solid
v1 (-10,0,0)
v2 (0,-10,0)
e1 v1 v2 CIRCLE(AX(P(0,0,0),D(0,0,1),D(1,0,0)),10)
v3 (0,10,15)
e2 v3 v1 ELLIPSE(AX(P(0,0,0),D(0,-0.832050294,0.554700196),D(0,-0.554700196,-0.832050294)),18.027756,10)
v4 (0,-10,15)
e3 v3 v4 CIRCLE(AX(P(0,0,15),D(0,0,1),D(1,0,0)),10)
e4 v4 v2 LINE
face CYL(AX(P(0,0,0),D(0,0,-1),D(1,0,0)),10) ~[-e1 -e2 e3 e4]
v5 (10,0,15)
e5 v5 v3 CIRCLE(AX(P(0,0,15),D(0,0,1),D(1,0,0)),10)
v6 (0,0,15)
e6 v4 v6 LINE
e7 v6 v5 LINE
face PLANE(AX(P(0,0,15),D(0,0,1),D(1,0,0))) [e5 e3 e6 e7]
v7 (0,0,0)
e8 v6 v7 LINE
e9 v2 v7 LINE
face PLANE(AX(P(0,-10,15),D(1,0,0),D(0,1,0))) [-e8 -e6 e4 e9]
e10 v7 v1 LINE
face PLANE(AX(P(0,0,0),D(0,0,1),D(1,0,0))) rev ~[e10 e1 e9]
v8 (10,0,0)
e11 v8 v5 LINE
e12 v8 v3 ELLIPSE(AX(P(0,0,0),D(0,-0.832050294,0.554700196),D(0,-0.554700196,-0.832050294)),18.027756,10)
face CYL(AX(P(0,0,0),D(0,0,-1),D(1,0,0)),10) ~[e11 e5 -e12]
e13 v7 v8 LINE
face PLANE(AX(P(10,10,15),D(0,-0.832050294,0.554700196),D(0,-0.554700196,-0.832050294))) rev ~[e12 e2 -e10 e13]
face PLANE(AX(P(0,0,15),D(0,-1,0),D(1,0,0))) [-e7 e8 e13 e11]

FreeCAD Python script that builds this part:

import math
import FreeCAD as App
import Part
import Sketcher

V = App.Vector
Q = App.Units.Quantity

doc = App.newDocument("Part")
body = doc.addObject("PartDesign::Body", "Body")

# Sketch on XY plane
sketch1 = doc.addObject("Sketcher::SketchObject", "Sketch")
body.addObject(sketch1)
sketch1.AttachmentSupport = (doc.XY_Plane, [""])
sketch1.MapMode = "FlatFace"
sketch1.addGeometry(Part.Circle(V(0, 0, 0), V(0, 0, 1), 10), False)
sketch1.addConstraint(Sketcher.Constraint("Coincident", 0, 3, -1, 1))
sketch1.addConstraint(Sketcher.Constraint("Diameter", 0, Q("20 mm")))
pad1 = doc.addObject("PartDesign::Pad", "Pad")
body.addObject(pad1)
pad1.Profile = sketch1
pad1.Length = 15

# Sketch on XY plane
sketch2 = doc.addObject("Sketcher::SketchObject", "Sketch001")
body.addObject(sketch2)
sketch2.AttachmentSupport = (doc.XY_Plane, [""])
sketch2.MapMode = "FlatFace"
sketch2.AttachmentOffset = App.Placement(V(0, 0, 15), App.Rotation())
sketch2.addGeometry(Part.LineSegment(V(10, 0, 0), V(0, 0, 0)), False)
sketch2.addGeometry(Part.LineSegment(V(0, 0, 0), V(0, -10, 0)), False)
sketch2.addGeometry(Part.ArcOfCircle(Part.Circle(V(0, 0, 0), V(0, 0, 1), 10), math.radians(-90), math.radians(0)), False)
sketch2.addConstraint(Sketcher.Constraint("Coincident", 0, 2, 1, 1))
sketch2.addConstraint(Sketcher.Constraint("Coincident", 1, 2, 2, 1))
sketch2.addConstraint(Sketcher.Constraint("Coincident", 2, 2, 0, 1))
sketch2.addConstraint(Sketcher.Constraint("Horizontal", 0))
sketch2.addConstraint(Sketcher.Constraint("Vertical", 1))
sketch2.addConstraint(Sketcher.Constraint("Coincident", 2, 3, -1, 1))
sketch2.addConstraint(Sketcher.Constraint("Coincident", 0, 2, -1, 1))
sketch2.addConstraint(Sketcher.Constraint("Radius", 2, Q("10 mm")))
pocket1 = doc.addObject("PartDesign::Pocket", "Pocket")
body.addObject(pocket1)
pocket1.Profile = sketch2
pocket1.Type = "ThroughAll"

# Sketch on YZ plane
sketch3 = doc.addObject("Sketcher::SketchObject", "Sketch002")
body.addObject(sketch3)
sketch3.AttachmentSupport = (doc.YZ_Plane, [""])
sketch3.MapMode = "FlatFace"
sketch3.AttachmentOffset = App.Placement(V(0, 0, 10), App.Rotation())
sketch3.addGeometry(Part.LineSegment(V(0, 0, 0), V(10, 0, 0)), False)
sketch3.addGeometry(Part.LineSegment(V(10, 0, 0), V(10, 15, 0)), False)
sketch3.addGeometry(Part.LineSegment(V(10, 15, 0), V(0, 0, 0)), False)
sketch3.addConstraint(Sketcher.Constraint("Coincident", 0, 2, 1, 1))
sketch3.addConstraint(Sketcher.Constraint("Coincident", 1, 2, 2, 1))
sketch3.addConstraint(Sketcher.Constraint("Coincident", 2, 2, 0, 1))
sketch3.addConstraint(Sketcher.Constraint("Horizontal", 0))
sketch3.addConstraint(Sketcher.Constraint("Vertical", 1))
sketch3.addConstraint(Sketcher.Constraint("Coincident", 2, 2, -1, 1))
sketch3.addConstraint(Sketcher.Constraint("DistanceX", 0, 1, 0, 2, Q("10 mm")))
sketch3.addConstraint(Sketcher.Constraint("DistanceY", 1, 1, 1, 2, Q("15 mm")))
pocket2 = doc.addObject("PartDesign::Pocket", "Pocket001")
body.addObject(pocket2)
pocket2.Profile = sketch3
pocket2.Length = 10

# Sketch on YZ plane
sketch4 = doc.addObject("Sketcher::SketchObject", "Sketch003")
body.addObject(sketch4)
sketch4.AttachmentSupport = (doc.YZ_Plane, [""])
sketch4.MapMode = "FlatFace"
sketch4.addGeometry(Part.LineSegment(V(10, 15, 0), V(0, 0, 0)), False)
sketch4.addGeometry(Part.LineSegment(V(0, 0, 0), V(10, 0, 0)), False)
sketch4.addGeometry(Part.LineSegment(V(10, 0, 0), V(10, 15, 0)), False)
sketch4.addConstraint(Sketcher.Constraint("Coincident", 0, 2, 1, 1))
sketch4.addConstraint(Sketcher.Constraint("Coincident", 1, 2, 2, 1))
sketch4.addConstraint(Sketcher.Constraint("Coincident", 2, 2, 0, 1))
sketch4.addConstraint(Sketcher.Constraint("Horizontal", 1))
sketch4.addConstraint(Sketcher.Constraint("Vertical", 2))
sketch4.addConstraint(Sketcher.Constraint("Coincident", 0, 2, -1, 1))
sketch4.addConstraint(Sketcher.Constraint("DistanceX", 1, 1, 1, 2, Q("10 mm")))
sketch4.addConstraint(Sketcher.Constraint("DistanceY", 2, 1, 2, 2, Q("15 mm")))
pocket3 = doc.addObject("PartDesign::Pocket", "Pocket002")
body.addObject(pocket3)
pocket3.Profile = sketch4
pocket3.Length = 10

doc.recompute()
